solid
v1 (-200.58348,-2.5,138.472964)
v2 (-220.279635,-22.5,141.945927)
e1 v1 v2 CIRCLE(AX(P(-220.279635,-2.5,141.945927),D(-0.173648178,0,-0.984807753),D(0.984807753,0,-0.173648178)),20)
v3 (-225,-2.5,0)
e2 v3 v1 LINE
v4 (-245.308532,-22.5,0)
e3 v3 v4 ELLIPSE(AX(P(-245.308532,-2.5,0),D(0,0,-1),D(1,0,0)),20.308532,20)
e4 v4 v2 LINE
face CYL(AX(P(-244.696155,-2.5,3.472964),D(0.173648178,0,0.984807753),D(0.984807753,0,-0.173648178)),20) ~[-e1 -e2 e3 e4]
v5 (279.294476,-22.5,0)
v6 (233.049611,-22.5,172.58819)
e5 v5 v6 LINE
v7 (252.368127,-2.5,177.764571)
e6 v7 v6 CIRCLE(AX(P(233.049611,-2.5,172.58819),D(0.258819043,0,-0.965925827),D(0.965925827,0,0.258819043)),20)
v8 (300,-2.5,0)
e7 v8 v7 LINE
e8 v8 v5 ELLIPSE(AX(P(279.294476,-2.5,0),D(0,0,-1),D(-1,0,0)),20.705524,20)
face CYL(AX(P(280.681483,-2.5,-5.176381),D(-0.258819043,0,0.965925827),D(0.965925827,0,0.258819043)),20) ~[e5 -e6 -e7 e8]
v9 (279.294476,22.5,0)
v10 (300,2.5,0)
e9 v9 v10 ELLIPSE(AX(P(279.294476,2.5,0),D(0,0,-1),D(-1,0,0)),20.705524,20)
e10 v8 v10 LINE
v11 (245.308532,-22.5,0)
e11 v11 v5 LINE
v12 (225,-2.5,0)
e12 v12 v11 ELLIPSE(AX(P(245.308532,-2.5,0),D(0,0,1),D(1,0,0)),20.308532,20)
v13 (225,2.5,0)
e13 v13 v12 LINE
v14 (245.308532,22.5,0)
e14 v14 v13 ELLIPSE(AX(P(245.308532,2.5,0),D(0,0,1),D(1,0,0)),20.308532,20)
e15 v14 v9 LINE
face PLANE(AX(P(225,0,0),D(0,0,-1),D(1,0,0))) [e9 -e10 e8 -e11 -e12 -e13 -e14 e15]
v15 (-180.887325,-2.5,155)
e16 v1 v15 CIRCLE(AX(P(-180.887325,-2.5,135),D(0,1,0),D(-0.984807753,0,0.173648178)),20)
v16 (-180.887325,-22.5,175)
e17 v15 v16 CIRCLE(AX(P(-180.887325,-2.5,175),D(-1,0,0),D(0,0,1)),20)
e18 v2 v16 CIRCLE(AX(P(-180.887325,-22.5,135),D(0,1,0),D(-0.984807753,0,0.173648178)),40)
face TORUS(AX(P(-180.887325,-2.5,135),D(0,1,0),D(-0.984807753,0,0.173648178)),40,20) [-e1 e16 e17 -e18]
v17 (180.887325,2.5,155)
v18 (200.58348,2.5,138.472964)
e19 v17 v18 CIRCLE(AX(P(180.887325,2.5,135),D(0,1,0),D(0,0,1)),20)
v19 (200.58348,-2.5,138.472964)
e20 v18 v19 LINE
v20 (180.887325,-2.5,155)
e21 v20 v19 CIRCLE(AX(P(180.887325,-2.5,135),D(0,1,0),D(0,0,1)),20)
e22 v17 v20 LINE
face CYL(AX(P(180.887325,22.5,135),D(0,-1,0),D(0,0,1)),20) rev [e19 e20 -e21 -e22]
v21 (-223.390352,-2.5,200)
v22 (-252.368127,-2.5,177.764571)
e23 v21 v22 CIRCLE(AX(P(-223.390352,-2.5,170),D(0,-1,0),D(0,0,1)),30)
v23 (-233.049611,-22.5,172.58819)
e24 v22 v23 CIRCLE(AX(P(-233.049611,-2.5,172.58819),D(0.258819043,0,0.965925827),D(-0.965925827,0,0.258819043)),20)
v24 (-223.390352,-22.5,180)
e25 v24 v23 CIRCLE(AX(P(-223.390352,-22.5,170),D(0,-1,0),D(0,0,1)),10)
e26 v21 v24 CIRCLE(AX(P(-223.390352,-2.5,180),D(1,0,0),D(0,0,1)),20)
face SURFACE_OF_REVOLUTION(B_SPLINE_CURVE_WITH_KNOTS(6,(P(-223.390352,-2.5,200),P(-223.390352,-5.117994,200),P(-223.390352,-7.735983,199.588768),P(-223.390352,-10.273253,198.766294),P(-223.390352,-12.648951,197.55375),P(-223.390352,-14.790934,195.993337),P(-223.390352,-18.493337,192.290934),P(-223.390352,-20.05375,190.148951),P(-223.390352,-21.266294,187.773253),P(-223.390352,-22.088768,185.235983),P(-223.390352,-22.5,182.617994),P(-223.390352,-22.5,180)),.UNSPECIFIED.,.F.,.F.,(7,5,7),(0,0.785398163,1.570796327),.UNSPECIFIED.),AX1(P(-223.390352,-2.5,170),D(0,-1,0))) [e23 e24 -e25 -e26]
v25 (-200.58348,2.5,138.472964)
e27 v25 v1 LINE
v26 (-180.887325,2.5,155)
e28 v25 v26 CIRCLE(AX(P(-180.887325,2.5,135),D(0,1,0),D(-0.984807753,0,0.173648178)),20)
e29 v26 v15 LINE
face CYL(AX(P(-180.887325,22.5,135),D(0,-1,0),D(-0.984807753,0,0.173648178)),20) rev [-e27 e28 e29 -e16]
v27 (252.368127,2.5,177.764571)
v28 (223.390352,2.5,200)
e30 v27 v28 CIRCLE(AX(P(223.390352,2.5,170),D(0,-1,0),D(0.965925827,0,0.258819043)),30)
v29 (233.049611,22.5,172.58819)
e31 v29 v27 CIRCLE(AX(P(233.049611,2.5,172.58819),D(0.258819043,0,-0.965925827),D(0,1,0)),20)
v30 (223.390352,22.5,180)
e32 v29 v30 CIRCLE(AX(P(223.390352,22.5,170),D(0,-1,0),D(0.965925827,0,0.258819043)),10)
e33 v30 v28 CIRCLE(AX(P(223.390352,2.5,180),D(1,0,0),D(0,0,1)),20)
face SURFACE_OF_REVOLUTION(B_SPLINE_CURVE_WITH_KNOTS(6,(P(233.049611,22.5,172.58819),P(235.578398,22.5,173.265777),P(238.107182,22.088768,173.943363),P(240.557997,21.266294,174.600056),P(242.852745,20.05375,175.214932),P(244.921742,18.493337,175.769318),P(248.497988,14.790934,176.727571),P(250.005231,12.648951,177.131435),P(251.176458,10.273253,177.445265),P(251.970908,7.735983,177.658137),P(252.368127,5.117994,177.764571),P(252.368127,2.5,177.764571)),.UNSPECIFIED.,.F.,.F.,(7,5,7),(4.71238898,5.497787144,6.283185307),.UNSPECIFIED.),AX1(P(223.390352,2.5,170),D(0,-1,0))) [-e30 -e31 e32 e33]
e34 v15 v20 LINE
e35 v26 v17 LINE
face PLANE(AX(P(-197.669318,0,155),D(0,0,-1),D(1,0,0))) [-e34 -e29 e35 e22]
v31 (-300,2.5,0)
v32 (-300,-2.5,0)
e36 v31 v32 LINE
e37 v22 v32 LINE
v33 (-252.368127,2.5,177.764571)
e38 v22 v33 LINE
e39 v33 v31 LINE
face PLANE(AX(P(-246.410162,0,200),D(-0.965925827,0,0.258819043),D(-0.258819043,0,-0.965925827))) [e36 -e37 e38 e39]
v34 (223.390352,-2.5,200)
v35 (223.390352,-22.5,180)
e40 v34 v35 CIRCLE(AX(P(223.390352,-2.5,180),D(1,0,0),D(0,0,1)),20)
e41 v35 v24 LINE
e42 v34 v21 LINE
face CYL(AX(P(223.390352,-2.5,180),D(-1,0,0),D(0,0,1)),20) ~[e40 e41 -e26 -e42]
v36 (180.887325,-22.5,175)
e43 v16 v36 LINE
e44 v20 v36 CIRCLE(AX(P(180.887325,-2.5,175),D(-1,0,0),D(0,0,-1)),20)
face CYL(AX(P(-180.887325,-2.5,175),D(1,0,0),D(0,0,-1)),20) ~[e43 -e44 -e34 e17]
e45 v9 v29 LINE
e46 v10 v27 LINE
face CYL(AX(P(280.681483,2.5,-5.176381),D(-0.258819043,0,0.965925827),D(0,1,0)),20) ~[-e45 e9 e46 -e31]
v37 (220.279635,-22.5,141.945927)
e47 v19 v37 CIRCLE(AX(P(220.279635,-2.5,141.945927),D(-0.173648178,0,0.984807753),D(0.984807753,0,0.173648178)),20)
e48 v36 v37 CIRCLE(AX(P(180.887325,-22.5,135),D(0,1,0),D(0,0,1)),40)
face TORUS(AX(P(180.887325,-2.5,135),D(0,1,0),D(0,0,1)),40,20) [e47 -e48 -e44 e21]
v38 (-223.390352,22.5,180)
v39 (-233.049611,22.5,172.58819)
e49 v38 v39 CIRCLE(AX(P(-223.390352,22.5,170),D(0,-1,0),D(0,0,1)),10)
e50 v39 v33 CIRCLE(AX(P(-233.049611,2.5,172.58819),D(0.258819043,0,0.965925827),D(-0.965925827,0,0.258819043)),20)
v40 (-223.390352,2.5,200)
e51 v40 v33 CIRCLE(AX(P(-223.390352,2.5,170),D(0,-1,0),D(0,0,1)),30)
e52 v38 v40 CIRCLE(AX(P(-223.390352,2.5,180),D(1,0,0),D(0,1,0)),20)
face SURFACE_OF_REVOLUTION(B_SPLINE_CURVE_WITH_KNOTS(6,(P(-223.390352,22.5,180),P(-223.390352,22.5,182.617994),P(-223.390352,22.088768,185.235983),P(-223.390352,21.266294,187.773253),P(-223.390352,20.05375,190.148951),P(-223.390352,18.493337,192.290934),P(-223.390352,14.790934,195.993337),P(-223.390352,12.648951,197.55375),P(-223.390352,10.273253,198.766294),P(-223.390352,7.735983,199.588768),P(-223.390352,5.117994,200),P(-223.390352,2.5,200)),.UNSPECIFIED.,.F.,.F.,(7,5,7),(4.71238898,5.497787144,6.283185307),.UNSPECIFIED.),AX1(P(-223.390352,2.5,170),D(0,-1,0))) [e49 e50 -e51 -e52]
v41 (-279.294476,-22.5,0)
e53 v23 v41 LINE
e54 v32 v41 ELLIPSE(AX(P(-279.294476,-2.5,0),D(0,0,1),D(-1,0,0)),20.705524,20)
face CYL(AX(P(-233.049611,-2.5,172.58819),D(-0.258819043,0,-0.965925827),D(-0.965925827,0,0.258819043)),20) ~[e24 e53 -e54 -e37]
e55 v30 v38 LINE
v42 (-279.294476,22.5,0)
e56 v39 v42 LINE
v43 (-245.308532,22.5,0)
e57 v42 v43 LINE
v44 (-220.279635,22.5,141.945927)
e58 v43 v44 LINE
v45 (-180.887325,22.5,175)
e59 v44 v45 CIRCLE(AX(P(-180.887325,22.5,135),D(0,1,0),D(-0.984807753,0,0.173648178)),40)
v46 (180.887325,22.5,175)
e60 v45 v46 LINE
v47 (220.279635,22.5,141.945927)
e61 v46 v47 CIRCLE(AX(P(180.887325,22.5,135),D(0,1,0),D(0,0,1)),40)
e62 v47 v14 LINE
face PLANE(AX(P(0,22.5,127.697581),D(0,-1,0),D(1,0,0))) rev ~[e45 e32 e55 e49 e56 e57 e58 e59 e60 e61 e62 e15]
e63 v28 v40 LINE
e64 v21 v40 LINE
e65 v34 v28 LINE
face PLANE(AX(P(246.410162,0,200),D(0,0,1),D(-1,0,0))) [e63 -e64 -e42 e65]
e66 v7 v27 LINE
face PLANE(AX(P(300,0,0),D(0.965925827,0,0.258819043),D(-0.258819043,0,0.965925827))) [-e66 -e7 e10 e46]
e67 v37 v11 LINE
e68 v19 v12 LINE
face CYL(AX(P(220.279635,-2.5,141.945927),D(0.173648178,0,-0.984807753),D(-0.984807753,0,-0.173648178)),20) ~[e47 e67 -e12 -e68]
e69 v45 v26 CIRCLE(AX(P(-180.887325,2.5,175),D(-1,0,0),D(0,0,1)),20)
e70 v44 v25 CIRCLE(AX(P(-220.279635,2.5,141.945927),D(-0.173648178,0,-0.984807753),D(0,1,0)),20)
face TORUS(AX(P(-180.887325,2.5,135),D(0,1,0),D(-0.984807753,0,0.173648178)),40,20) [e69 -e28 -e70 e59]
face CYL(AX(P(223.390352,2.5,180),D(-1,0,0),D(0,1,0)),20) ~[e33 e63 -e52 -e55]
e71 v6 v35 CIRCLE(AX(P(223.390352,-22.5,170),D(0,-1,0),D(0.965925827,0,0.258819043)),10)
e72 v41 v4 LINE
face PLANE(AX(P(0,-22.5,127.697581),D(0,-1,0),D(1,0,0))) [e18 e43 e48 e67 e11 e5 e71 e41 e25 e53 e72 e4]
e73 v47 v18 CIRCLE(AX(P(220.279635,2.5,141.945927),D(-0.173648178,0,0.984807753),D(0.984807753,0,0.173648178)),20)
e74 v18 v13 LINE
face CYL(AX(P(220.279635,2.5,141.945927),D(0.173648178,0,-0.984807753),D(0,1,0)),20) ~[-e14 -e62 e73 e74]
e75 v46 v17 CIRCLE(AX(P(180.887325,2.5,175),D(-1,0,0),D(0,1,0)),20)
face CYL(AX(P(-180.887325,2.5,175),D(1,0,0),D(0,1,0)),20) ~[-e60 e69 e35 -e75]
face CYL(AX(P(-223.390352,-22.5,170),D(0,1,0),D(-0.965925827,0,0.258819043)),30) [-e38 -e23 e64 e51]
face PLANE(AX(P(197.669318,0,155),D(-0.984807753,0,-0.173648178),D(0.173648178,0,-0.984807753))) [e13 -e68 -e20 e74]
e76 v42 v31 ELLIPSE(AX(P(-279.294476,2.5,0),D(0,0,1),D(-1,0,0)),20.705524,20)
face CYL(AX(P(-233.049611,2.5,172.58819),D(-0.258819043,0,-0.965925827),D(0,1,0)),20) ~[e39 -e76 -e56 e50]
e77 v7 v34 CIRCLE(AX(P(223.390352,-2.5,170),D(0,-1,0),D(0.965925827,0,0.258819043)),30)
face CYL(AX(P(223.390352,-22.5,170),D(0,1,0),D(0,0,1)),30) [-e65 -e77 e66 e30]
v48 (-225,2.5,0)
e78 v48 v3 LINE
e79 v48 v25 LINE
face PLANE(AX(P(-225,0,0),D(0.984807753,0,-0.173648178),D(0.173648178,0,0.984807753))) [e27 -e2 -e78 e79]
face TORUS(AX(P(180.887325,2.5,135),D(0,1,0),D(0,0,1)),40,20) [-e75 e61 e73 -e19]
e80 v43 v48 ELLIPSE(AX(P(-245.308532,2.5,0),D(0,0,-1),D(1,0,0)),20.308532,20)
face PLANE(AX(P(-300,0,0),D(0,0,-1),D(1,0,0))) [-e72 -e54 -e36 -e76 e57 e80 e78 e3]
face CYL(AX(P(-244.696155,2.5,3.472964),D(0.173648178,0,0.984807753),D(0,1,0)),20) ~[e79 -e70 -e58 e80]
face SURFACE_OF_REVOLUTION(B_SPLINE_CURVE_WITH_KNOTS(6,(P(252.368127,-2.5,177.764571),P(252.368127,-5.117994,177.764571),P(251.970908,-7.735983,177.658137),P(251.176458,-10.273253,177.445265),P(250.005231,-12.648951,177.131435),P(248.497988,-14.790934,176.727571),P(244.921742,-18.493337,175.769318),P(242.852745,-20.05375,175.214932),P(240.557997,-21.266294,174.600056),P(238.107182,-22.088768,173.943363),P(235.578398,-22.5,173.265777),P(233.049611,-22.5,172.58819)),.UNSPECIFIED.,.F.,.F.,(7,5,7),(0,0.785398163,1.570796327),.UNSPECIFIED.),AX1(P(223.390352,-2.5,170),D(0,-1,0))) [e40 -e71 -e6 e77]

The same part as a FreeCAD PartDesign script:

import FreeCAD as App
import Part
import Sketcher
Q = App.Units.Quantity


def edges_at(feature, points):
    """Names of the edges that pass closest to the given points."""
    edges = feature.Shape.Edges
    near = lambda p: min(range(len(edges)), key=lambda i: edges[i].distToShape(Part.Vertex(*p))[0])
    return sorted({f"Edge{near(p) + 1}" for p in points})

doc = App.newDocument("Part")
body = doc.addObject("PartDesign::Body", "Body")

sketch1 = body.newObject("Sketcher::SketchObject", "Sketch")
sketch1.AttachmentSupport = (doc.getObject("XZ_Plane"), [""])
sketch1.MapMode = "FlatFace"
sketch1.addGeometry([
    Part.LineSegment(App.Vector(-246, 200, 0), App.Vector(-300, 0, 0)),
    Part.LineSegment(App.Vector(-300, 0, 0), App.Vector(-225, 0, 0)),
    Part.LineSegment(App.Vector(-225, 0, 0), App.Vector(-198, 155, 0)),
    Part.LineSegment(App.Vector(-198, 155, 0), App.Vector(198, 155, 0)),
    Part.LineSegment(App.Vector(198, 155, 0), App.Vector(225, 0, 0)),
    Part.LineSegment(App.Vector(225, 0, 0), App.Vector(300, 0, 0)),
    Part.LineSegment(App.Vector(300, 0, 0), App.Vector(246, 200, 0)),
    Part.LineSegment(App.Vector(246, 200, 0), App.Vector(-246, 200, 0)),
], False)
sketch1.addConstraint([
    Sketcher.Constraint("Coincident", 0, 2, 1, 1),
    Sketcher.Constraint("Coincident", 1, 2, 2, 1),
    Sketcher.Constraint("Coincident", 2, 2, 3, 1),
    Sketcher.Constraint("Coincident", 3, 2, 4, 1),
    Sketcher.Constraint("Coincident", 4, 2, 5, 1),
    Sketcher.Constraint("Coincident", 5, 2, 6, 1),
    Sketcher.Constraint("Coincident", 6, 2, 7, 1),
    Sketcher.Constraint("Coincident", 7, 2, 0, 1),
    Sketcher.Constraint("Horizontal", 1),
    Sketcher.Constraint("Horizontal", 3),
    Sketcher.Constraint("Horizontal", 5),
    Sketcher.Constraint("Horizontal", 7),
    Sketcher.Constraint("Symmetric", 1, 2, 4, 2, -1, 1),
    Sketcher.Constraint("Symmetric", 0, 2, 5, 2, -2),
    Sketcher.Constraint("Equal", 2, 4),
    Sketcher.Constraint("Equal", 0, 6),
    Sketcher.Constraint("DistanceX", 1, 1, 1, 2, Q("75 mm")),
    Sketcher.Constraint("Angle", 0, Q("-105 deg")),
    Sketcher.Constraint("Angle", 2, Q("80 deg")),
    Sketcher.Constraint("DistanceX", 0, 2, -1, 1, Q("300 mm")),
    Sketcher.Constraint("DistanceY", -1, 1, 2, 2, Q("155 mm")),
    Sketcher.Constraint("DistanceY", -1, 1, 6, 2, Q("200 mm")),
])
pad1 = body.newObject("PartDesign::Pad", "Pad")
pad1.Profile = sketch1
pad1.Length = 45
pad1.Midplane = True
doc.recompute()

fillet = body.newObject("PartDesign::Fillet", "Fillet")
fillet.Base = (pad1, edges_at(pad1, [(246.41, 0, 200), (-246.41, 0, 200)]))
fillet.Radius = 30
doc.recompute()

fillet2 = body.newObject("PartDesign::Fillet", "Fillet001")
fillet2.Base = (fillet, edges_at(fillet, [(-197.669, 0, 155), (197.669, 0, 155)]))
fillet2.Radius = 20
doc.recompute()

fillet3 = body.newObject("PartDesign::Fillet", "Fillet002")
fillet3.Base = (fillet2, edges_at(fillet2, [
    (0, 22.5, 200),
    (0, 22.5, 155),
    (212.792, -22.5, 69.236),
    (276.184, -22.5, 88.882),
]))
fillet3.Radius = 20

doc.recompute()
